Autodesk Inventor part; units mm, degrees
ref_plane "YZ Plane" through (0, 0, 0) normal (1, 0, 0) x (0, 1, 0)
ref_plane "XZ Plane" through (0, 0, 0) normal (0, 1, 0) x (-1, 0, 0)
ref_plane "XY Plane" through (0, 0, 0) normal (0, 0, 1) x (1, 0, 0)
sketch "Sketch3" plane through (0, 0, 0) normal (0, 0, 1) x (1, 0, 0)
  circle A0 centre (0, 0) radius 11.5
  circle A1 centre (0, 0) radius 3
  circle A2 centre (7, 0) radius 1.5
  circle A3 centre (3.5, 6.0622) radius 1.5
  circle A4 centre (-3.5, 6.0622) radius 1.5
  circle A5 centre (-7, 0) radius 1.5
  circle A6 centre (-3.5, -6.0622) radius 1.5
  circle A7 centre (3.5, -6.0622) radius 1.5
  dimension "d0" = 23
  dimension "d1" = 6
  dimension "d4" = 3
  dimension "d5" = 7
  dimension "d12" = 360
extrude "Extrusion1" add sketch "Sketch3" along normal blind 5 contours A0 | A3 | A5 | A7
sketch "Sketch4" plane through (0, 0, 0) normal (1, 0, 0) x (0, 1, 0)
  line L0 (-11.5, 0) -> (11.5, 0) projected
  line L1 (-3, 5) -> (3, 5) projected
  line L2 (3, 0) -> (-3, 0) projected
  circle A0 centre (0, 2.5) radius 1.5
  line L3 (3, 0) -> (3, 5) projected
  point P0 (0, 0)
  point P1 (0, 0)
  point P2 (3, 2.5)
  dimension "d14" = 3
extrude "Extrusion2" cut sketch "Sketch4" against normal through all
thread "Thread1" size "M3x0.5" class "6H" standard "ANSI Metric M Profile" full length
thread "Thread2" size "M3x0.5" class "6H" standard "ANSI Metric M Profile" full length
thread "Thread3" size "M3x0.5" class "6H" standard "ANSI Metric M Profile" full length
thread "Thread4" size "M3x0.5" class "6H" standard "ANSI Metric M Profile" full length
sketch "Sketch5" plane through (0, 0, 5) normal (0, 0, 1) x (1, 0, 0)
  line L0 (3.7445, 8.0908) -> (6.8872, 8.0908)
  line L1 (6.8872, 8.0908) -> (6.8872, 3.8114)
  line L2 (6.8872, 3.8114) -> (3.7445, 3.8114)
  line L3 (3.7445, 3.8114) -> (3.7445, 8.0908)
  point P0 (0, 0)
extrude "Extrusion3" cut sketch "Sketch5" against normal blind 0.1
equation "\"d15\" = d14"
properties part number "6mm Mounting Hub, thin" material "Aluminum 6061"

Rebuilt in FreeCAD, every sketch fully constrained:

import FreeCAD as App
import Part
import Sketcher
from FreeCAD import Vector

doc = App.newDocument("Part")
params = doc.addObject("Spreadsheet::Sheet", "Params")
for row, (alias, value) in enumerate([
    ("sketch1_diameter", "23 mm"),
    ("sketch1_diameter2", "3 mm"),
    ("sketch1_diameter3", "6 mm"),
    ("pad1_length", "5 mm"),
    ("sketch2_diameter", "3 mm"),
    ("pocket2_length", "0.1 mm"),
], start=1):
    params.set(f"A{row}", alias)
    params.set(f"B{row}", "=" + value)
    params.setAlias(f"B{row}", alias)

body = doc.addObject("PartDesign::Body", "Body")

# Sketch on XY plane
sketch1 = doc.addObject("Sketcher::SketchObject", "Sketch")
body.addObject(sketch1)
sketch1.AttachmentSupport = (doc.XY_Plane, [""])
sketch1.MapMode = "FlatFace"
sketch1.addGeometry([
    Part.Circle(Vector(0, 0, 0), Vector(0, 0, 1), 11.5),  # 0
    Part.Circle(Vector(-3.5, -6.1, 0), Vector(0, 0, 1), 1.5),  # 1
    Part.Circle(Vector(-3.5, 6.1, 0), Vector(0, 0, 1), 1.5),  # 2
    Part.Circle(Vector(0, 0, 0), Vector(0, 0, 1), 3),  # 3
    Part.Circle(Vector(7, 0, 0), Vector(0, 0, 1), 1.5),  # 4
], False)
sketch1.addConstraint([
    Sketcher.Constraint("Coincident", 0, 3, -1, 1),
    Sketcher.Constraint("Coincident", 3, 3, -1, 1),
    Sketcher.Constraint("Equal", 1, 2),
    Sketcher.Constraint("Equal", 2, 4),
    Sketcher.Constraint("Symmetric", 1, 3, 2, 3, -1),
    Sketcher.Constraint("PointOnObject", 4, 3, -1),
    Sketcher.Constraint("Diameter", 0, 23.0),
    Sketcher.Constraint("Diameter", 1, 3.0),
    Sketcher.Constraint("Diameter", 3, 6.0),
    Sketcher.Constraint("DistanceX", -1, 1, 4, 3, 7.0),
    Sketcher.Constraint("DistanceX", 1, 3, -1, 1, 3.5),
    Sketcher.Constraint("DistanceY", 1, 3, -1, 1, 6.0622),
])
sketch1.setExpression("Constraints[6]", "Params.sketch1_diameter")
sketch1.setExpression("Constraints[7]", "Params.sketch1_diameter2")
sketch1.setExpression("Constraints[8]", "Params.sketch1_diameter3")
pad1 = doc.addObject("PartDesign::Pad", "Pad")
body.addObject(pad1)
pad1.Profile = sketch1
pad1.setExpression("Length", "Params.pad1_length")

# Sketch on YZ plane
sketch2 = doc.addObject("Sketcher::SketchObject", "Sketch001")
body.addObject(sketch2)
sketch2.AttachmentSupport = (doc.YZ_Plane, [""])
sketch2.MapMode = "FlatFace"
sketch2.addGeometry(Part.Circle(Vector(0, 2.5, 0), Vector(0, 0, 1), 1.5), False)
sketch2.addConstraint([
    Sketcher.Constraint("PointOnObject", 0, 3, -2),
    Sketcher.Constraint("Diameter", 0, 3.0),
    Sketcher.Constraint("DistanceY", -1, 1, 0, 3, 2.5),
])
sketch2.setExpression("Constraints[1]", "Params.sketch2_diameter")
pocket1 = doc.addObject("PartDesign::Pocket", "Pocket")
body.addObject(pocket1)
pocket1.Profile = sketch2
pocket1.Type = "ThroughAll"

# Sketch on XY plane
sketch3 = doc.addObject("Sketcher::SketchObject", "Sketch002")
body.addObject(sketch3)
sketch3.AttachmentSupport = (doc.XY_Plane, [""])
sketch3.MapMode = "FlatFace"
sketch3.AttachmentOffset = App.Placement(Vector(0, 0, 5), App.Rotation())
sketch3.addGeometry([
    Part.LineSegment(Vector(6.9, 8.1, 0), Vector(3.7, 8.1, 0)),
    Part.LineSegment(Vector(3.7, 8.1, 0), Vector(3.7, 3.8, 0)),
    Part.LineSegment(Vector(3.7, 3.8, 0), Vector(6.9, 3.8, 0)),
    Part.LineSegment(Vector(6.9, 3.8, 0), Vector(6.9, 8.1, 0)),
], False)
sketch3.addConstraint([
    Sketcher.Constraint("Coincident", 0, 2, 1, 1),
    Sketcher.Constraint("Coincident", 1, 2, 2, 1),
    Sketcher.Constraint("Coincident", 2, 2, 3, 1),
    Sketcher.Constraint("Coincident", 3, 2, 0, 1),
    Sketcher.Constraint("Horizontal", 0),
    Sketcher.Constraint("Vertical", 1),
    Sketcher.Constraint("Horizontal", 2),
    Sketcher.Constraint("Vertical", 3),
    Sketcher.Constraint("DistanceX", 0, 2, 0, 1, 3.1427),
    Sketcher.Constraint("DistanceY", 1, 2, 1, 1, 4.2794),
    Sketcher.Constraint("DistanceX", -1, 1, 0, 2, 3.7445),
    Sketcher.Constraint("DistanceY", -1, 1, 0, 2, 8.0908),
])
pocket2 = doc.addObject("PartDesign::Pocket", "Pocket001")
body.addObject(pocket2)
pocket2.Profile = sketch3
pocket2.setExpression("Length", "Params.pocket2_length")

doc.recompute()
